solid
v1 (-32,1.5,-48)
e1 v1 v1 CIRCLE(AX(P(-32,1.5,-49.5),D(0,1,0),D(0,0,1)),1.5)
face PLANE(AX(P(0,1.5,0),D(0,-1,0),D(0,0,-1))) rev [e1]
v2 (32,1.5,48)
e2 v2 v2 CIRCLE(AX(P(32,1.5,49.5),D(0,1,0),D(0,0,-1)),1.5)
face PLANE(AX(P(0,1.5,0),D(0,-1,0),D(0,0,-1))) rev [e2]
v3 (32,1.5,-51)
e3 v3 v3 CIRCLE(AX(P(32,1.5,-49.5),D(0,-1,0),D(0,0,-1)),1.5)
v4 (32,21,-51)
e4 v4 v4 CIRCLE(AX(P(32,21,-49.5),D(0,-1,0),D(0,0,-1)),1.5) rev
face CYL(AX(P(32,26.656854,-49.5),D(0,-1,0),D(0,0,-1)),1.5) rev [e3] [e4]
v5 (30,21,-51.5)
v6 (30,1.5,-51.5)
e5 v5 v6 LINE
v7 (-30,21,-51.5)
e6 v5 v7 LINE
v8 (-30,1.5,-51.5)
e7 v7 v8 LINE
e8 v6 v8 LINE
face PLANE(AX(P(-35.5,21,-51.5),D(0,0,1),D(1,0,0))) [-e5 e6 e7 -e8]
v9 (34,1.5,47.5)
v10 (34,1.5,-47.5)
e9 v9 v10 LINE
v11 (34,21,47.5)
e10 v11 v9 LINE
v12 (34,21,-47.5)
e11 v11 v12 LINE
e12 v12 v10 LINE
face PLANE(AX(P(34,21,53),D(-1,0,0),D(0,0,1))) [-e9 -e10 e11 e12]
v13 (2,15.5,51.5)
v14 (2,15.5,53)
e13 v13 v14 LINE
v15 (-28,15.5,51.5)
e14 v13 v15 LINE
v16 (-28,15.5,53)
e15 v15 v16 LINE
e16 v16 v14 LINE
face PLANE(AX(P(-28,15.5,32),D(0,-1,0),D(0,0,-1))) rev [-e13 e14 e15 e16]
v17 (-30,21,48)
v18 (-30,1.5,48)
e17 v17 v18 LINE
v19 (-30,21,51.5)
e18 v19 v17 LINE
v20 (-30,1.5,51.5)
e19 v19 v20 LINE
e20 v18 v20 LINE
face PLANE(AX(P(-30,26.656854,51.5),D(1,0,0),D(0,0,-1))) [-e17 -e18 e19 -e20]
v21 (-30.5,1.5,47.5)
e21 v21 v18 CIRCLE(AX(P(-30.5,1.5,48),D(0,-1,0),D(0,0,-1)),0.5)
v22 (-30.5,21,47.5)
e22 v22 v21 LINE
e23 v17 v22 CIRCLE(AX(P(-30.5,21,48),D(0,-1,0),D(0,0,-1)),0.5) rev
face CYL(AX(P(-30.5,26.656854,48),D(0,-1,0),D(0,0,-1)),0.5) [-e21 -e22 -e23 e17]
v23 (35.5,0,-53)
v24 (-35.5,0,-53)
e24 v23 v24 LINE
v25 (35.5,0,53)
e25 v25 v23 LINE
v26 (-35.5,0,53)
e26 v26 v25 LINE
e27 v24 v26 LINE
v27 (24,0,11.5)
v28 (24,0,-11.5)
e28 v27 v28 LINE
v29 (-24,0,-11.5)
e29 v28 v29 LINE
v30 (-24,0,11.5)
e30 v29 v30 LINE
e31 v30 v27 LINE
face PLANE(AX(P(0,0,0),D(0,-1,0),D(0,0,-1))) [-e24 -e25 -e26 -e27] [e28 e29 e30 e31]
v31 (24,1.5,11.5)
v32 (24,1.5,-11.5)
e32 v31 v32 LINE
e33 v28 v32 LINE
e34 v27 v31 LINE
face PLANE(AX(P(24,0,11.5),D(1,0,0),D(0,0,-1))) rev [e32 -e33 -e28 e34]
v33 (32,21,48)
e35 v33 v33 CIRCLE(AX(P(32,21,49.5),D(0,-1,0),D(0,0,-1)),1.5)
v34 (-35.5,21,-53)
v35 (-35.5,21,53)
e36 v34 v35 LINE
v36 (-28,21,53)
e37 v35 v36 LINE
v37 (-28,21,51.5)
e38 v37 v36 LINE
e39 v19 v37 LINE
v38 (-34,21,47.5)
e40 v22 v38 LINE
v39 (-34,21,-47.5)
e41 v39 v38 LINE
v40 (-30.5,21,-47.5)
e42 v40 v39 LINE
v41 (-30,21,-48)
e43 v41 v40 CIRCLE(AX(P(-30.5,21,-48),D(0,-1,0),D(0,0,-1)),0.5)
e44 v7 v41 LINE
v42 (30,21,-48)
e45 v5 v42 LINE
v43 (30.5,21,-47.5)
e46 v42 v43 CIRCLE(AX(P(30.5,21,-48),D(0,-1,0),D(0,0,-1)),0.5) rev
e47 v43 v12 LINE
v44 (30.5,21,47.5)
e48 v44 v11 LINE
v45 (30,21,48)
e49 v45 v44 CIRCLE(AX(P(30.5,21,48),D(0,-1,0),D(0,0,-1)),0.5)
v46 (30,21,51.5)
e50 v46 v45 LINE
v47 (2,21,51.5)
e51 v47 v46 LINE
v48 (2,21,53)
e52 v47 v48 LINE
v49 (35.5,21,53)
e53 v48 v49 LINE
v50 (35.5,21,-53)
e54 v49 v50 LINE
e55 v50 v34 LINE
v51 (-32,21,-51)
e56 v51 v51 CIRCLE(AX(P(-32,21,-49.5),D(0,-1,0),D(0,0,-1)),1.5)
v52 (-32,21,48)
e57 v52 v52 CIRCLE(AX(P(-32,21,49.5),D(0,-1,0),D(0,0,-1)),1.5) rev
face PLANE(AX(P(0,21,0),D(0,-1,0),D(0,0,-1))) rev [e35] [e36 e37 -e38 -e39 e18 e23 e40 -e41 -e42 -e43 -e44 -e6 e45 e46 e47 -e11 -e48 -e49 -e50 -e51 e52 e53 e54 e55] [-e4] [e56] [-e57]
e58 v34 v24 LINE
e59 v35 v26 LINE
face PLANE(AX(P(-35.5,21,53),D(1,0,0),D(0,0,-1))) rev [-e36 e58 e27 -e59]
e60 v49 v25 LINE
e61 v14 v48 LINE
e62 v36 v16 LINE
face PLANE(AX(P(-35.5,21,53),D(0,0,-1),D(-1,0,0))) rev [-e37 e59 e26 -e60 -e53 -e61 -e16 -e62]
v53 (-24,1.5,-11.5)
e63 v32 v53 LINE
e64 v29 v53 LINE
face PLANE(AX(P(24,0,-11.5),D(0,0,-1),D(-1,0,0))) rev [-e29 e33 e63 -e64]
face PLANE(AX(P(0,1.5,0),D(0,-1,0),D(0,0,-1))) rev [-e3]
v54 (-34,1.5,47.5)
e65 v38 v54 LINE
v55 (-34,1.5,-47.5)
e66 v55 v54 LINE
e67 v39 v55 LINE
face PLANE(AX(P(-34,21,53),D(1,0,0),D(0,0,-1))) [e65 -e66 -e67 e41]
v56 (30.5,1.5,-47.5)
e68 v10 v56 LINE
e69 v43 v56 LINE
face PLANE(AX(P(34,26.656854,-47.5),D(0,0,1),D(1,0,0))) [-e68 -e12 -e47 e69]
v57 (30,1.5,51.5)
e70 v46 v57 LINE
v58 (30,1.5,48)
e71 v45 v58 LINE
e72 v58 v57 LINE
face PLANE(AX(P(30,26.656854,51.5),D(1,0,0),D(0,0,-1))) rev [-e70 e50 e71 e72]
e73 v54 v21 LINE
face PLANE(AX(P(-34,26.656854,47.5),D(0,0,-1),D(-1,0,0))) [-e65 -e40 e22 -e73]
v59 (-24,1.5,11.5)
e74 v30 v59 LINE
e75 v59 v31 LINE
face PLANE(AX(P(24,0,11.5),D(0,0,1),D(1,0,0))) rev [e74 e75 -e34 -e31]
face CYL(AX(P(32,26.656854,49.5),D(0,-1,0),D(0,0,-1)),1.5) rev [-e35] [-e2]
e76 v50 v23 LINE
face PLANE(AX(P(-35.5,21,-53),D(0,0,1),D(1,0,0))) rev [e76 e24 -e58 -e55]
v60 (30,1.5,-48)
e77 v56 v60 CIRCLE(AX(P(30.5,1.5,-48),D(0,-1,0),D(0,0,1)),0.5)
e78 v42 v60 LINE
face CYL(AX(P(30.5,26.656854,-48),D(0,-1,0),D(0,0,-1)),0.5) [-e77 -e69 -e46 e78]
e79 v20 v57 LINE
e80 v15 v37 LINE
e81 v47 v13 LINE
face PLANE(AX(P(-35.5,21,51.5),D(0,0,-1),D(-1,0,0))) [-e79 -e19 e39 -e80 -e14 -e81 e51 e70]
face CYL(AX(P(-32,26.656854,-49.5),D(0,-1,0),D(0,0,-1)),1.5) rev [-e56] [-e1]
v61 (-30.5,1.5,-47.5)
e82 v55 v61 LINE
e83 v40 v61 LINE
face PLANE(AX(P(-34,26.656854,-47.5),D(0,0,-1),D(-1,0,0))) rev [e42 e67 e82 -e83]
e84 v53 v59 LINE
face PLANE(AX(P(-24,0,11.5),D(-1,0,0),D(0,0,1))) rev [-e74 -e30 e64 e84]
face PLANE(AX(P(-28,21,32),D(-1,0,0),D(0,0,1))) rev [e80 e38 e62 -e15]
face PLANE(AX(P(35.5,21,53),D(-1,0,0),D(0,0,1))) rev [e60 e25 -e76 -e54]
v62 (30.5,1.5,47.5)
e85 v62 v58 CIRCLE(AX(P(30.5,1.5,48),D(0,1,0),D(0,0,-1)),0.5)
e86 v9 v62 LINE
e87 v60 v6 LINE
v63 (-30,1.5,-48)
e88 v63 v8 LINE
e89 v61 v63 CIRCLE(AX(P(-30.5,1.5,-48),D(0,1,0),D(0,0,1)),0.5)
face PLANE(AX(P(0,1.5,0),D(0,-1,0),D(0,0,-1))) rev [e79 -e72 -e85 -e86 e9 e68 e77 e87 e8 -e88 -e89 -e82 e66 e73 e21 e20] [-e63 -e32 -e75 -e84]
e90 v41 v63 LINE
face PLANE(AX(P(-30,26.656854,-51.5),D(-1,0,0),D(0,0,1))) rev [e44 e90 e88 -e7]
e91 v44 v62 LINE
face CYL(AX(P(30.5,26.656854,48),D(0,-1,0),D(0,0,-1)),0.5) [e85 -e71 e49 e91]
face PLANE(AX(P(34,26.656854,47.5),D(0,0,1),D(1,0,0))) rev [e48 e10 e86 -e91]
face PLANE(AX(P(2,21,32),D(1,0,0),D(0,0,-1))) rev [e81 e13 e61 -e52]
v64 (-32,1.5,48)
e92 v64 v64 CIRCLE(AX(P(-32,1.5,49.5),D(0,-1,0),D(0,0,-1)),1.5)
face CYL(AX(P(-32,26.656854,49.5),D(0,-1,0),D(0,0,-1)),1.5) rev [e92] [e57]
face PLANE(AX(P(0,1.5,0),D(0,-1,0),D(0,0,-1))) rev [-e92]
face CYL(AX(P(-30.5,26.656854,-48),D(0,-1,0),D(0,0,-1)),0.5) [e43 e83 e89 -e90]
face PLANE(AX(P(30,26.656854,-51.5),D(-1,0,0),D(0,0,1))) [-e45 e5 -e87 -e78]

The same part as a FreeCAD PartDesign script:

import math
import FreeCAD as App
import Part
import Sketcher

V = App.Vector


def faces_at(feature, points):
    """Names of the faces that lie closest to the given points."""
    faces = feature.Shape.Faces
    near = lambda p: min(range(len(faces)), key=lambda i: faces[i].distToShape(Part.Vertex(*p))[0])
    return sorted({f"Face{near(p) + 1}" for p in points})

doc = App.newDocument("Part")
body = doc.addObject("PartDesign::Body", "Body")

# Sketch on XZ plane
sketch1 = body.newObject("Sketcher::SketchObject", "Sketch")
sketch1.AttachmentSupport = (doc.getObject("XZ_Plane"), [""])
sketch1.MapMode = "FlatFace"
sketch1.addGeometry([
    Part.LineSegment(V(-35.5, -53, 0), V(-35.5, 53, 0)),
    Part.LineSegment(V(-35.5, 53, 0), V(35.5, 53, 0)),
    Part.LineSegment(V(35.5, 53, 0), V(35.5, -53, 0)),
    Part.LineSegment(V(35.5, -53, 0), V(-35.5, -53, 0)),
], False)
sketch1.addConstraint([
    Sketcher.Constraint("Coincident", 0, 2, 1, 1),
    Sketcher.Constraint("Coincident", 1, 2, 2, 1),
    Sketcher.Constraint("Coincident", 2, 2, 3, 1),
    Sketcher.Constraint("Coincident", 3, 2, 0, 1),
    Sketcher.Constraint("Vertical", 0),
    Sketcher.Constraint("Horizontal", 1),
    Sketcher.Constraint("Vertical", 2),
    Sketcher.Constraint("Horizontal", 3),
    Sketcher.Constraint("Symmetric", 0, 2, 2, 2, -1, 1),
    Sketcher.Constraint("DistanceX", 1, 1, 1, 2, 71.0),
    Sketcher.Constraint("DistanceY", 0, 1, 0, 2, 106.0),
])
pad1 = body.newObject("PartDesign::Pad", "Pad")
pad1.Profile = sketch1
pad1.Length = 21
pad1.Reversed = True
doc.recompute()

thickness = body.newObject("PartDesign::Thickness", "Thickness")
thickness.Base = (pad1, faces_at(pad1, [(0, 21, 0)]))
thickness.Value = 1.5
thickness.Reversed = True
thickness.Join = "Intersection"

# Sketch on XY plane
sketch2 = body.newObject("Sketcher::SketchObject", "Sketch001")
sketch2.AttachmentSupport = (doc.getObject("XY_Plane"), [""])
sketch2.MapMode = "FlatFace"
sketch2.AttachmentOffset = App.Placement(V(0, 0, 53), App.Rotation())
sketch2.addGeometry([
    Part.LineSegment(V(-28, 21, 0), V(-28, 15.5, 0)),
    Part.LineSegment(V(-28, 15.5, 0), V(2, 15.5, 0)),
    Part.LineSegment(V(2, 15.5, 0), V(2, 21, 0)),
    Part.LineSegment(V(2, 21, 0), V(-28, 21, 0)),
], False)
sketch2.addConstraint([
    Sketcher.Constraint("Coincident", 0, 2, 1, 1),
    Sketcher.Constraint("Coincident", 1, 2, 2, 1),
    Sketcher.Constraint("Coincident", 2, 2, 3, 1),
    Sketcher.Constraint("Coincident", 3, 2, 0, 1),
    Sketcher.Constraint("Vertical", 0),
    Sketcher.Constraint("Horizontal", 1),
    Sketcher.Constraint("Vertical", 2),
    Sketcher.Constraint("Horizontal", 3),
    Sketcher.Constraint("DistanceX", 1, 1, 1, 2, 30.0),
    Sketcher.Constraint("DistanceY", 0, 2, 0, 1, 5.5),
    Sketcher.Constraint("DistanceX", 0, 2, -1, 1, 28.0),
    Sketcher.Constraint("DistanceY", -1, 1, 2, 2, 21.0),
])
pocket1 = body.newObject("PartDesign::Pocket", "Pocket")
pocket1.Profile = sketch2
pocket1.Length = 21

# Sketch on XZ plane
sketch3 = body.newObject("Sketcher::SketchObject", "Sketch002")
sketch3.AttachmentSupport = (doc.getObject("XZ_Plane"), [""])
sketch3.MapMode = "FlatFace"
sketch3.AttachmentOffset = App.Placement(V(0, 0, -1.5), App.Rotation())
sketch3.addGeometry([
    Part.LineSegment(V(-30, -51.5, 0), V(-34, -51.5, 0)),  # 0
    Part.LineSegment(V(-34, -51.5, 0), V(-34, -47.5, 0)),  # 1
    Part.LineSegment(V(-34, -47.5, 0), V(-30.5, -47.5, 0)),  # 2
    Part.ArcOfCircle(Part.Circle(V(-30.5, -48, 0), V(0, 0, 1), 0.5), math.radians(0), math.radians(90)),  # 3
    Part.LineSegment(V(-30, -48, 0), V(-30, -51.5, 0)),  # 4
    Part.Circle(V(-32, -49.5, 0), V(0, 0, 1), 1.5),  # 5
], False)
sketch3.addConstraint([
    Sketcher.Constraint("Coincident", 0, 2, 1, 1),
    Sketcher.Constraint("Coincident", 1, 2, 2, 1),
    Sketcher.Constraint("Tangent", 2, 2, 3, 2),
    Sketcher.Constraint("Tangent", 3, 1, 4, 1),
    Sketcher.Constraint("Coincident", 4, 2, 0, 1),
    Sketcher.Constraint("Horizontal", 0),
    Sketcher.Constraint("Vertical", 1),
    Sketcher.Constraint("Horizontal", 2),
    Sketcher.Constraint("Vertical", 4),
    Sketcher.Constraint("Equal", 0, 1),
    Sketcher.Constraint("Diameter", 5, 3.0),
    Sketcher.Constraint("Radius", 3, 0.5),
    Sketcher.Constraint("DistanceX", 0, 2, 0, 1, 4.0),
    Sketcher.Constraint("DistanceY", 3, 3, -1, 1, 48.0),
    Sketcher.Constraint("DistanceX", 5, 3, -1, 1, 32.0),
    Sketcher.Constraint("DistanceX", 0, 2, -1, 1, 34.0),
    Sketcher.Constraint("DistanceY", 0, 2, 5, 3, 2.0),
])
pad2 = body.newObject("PartDesign::Pad", "Pad001")
pad2.Profile = sketch3
pad2.Length = 19.5
pad2.Reversed = True
doc.recompute()

mirrored = body.newObject("PartDesign::Mirrored", "Mirrored")
mirrored.Originals = [pad2]
mirrored.MirrorPlane = (doc.getObject("YZ_Plane"), [""])
body.Tip = mirrored
doc.recompute()

mirrored2 = body.newObject("PartDesign::Mirrored", "Mirrored001")
mirrored2.Originals = [pad2]
mirrored2.MirrorPlane = (doc.getObject("XY_Plane"), [""])
body.Tip = mirrored2

# Sketch on XZ plane
sketch4 = body.newObject("Sketcher::SketchObject", "Sketch003")
sketch4.AttachmentSupport = (doc.getObject("XZ_Plane"), [""])
sketch4.MapMode = "FlatFace"
sketch4.AttachmentOffset = App.Placement(V(0, 0, -1.5), App.Rotation())
sketch4.addGeometry([
    Part.LineSegment(V(30, 51.5, 0), V(34, 51.5, 0)),  # 0
    Part.LineSegment(V(34, 51.5, 0), V(34, 47.5, 0)),  # 1
    Part.LineSegment(V(34, 47.5, 0), V(30.5, 47.5, 0)),  # 2
    Part.ArcOfCircle(Part.Circle(V(30.5, 48, 0), V(0, 0, 1), 0.5), math.radians(180), math.radians(270)),  # 3
    Part.LineSegment(V(30, 48, 0), V(30, 51.5, 0)),  # 4
    Part.Circle(V(32, 49.5, 0), V(0, 0, 1), 1.5),  # 5
], False)
sketch4.addConstraint([
    Sketcher.Constraint("Coincident", 0, 2, 1, 1),
    Sketcher.Constraint("Coincident", 1, 2, 2, 1),
    Sketcher.Constraint("Tangent", 2, 2, 3, 2),
    Sketcher.Constraint("Tangent", 3, 1, 4, 1),
    Sketcher.Constraint("Coincident", 4, 2, 0, 1),
    Sketcher.Constraint("Horizontal", 0),
    Sketcher.Constraint("Vertical", 1),
    Sketcher.Constraint("Horizontal", 2),
    Sketcher.Constraint("Vertical", 4),
    Sketcher.Constraint("Equal", 0, 1),
    Sketcher.Constraint("Diameter", 5, 3.0),
    Sketcher.Constraint("Radius", 3, 0.5),
    Sketcher.Constraint("DistanceX", 0, 1, 0, 2, 4.0),
    Sketcher.Constraint("DistanceY", -1, 1, 3, 3, 48.0),
    Sketcher.Constraint("DistanceX", -1, 1, 5, 3, 32.0),
    Sketcher.Constraint("DistanceX", -1, 1, 0, 2, 34.0),
    Sketcher.Constraint("DistanceY", 5, 3, 0, 2, 2.0),
])
pad3 = body.newObject("PartDesign::Pad", "Pad002")
pad3.Profile = sketch4
pad3.Length = 19.5
pad3.Reversed = True

# Sketch on XZ plane
sketch5 = body.newObject("Sketcher::SketchObject", "Sketch004")
sketch5.AttachmentSupport = (doc.getObject("XZ_Plane"), [""])
sketch5.MapMode = "FlatFace"
sketch5.AttachmentOffset = App.Placement(V(0, 0, -1.5), App.Rotation())
sketch5.addGeometry([
    Part.LineSegment(V(-24, -11.5, 0), V(-24, 11.5, 0)),
    Part.LineSegment(V(-24, 11.5, 0), V(24, 11.5, 0)),
    Part.LineSegment(V(24, 11.5, 0), V(24, -11.5, 0)),
    Part.LineSegment(V(24, -11.5, 0), V(-24, -11.5, 0)),
], False)
sketch5.addConstraint([
    Sketcher.Constraint("Coincident", 0, 2, 1, 1),
    Sketcher.Constraint("Coincident", 1, 2, 2, 1),
    Sketcher.Constraint("Coincident", 2, 2, 3, 1),
    Sketcher.Constraint("Coincident", 3, 2, 0, 1),
    Sketcher.Constraint("Vertical", 0),
    Sketcher.Constraint("Horizontal", 1),
    Sketcher.Constraint("Vertical", 2),
    Sketcher.Constraint("Horizontal", 3),
    Sketcher.Constraint("Symmetric", 0, 2, 2, 2, -1, 1),
    Sketcher.Constraint("DistanceX", 1, 1, 1, 2, 48.0),
    Sketcher.Constraint("DistanceY", 0, 1, 0, 2, 23.0),
])
pocket2 = body.newObject("PartDesign::Pocket", "Pocket001")
pocket2.Profile = sketch5
pocket2.Length = 1.5
pocket2.Reversed = True

doc.recompute()
